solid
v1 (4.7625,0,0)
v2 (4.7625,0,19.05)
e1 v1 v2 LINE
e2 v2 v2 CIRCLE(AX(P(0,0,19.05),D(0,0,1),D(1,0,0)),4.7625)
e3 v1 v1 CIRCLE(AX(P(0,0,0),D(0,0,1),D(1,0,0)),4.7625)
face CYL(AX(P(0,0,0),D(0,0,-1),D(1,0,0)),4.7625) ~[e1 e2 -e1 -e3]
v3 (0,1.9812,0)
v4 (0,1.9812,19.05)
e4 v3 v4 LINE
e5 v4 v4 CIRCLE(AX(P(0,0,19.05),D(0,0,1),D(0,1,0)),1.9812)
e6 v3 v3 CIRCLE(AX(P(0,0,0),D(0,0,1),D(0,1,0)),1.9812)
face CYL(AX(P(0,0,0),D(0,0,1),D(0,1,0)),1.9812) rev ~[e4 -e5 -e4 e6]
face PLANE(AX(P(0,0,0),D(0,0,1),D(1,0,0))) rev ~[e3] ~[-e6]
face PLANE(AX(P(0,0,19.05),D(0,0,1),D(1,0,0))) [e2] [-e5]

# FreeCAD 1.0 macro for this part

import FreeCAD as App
import Part
import Sketcher

V = App.Vector
Q = App.Units.Quantity

doc = App.newDocument("Part")
body = doc.addObject("PartDesign::Body", "Body")

sketch1 = body.newObject("Sketcher::SketchObject", "Sketch")
sketch1.AttachmentSupport = (doc.getObject("XY_Plane"), [""])
sketch1.MapMode = "FlatFace"
sketch1.addGeometry(Part.Circle(V(0, 0, 0), V(0, 0, 1), 4.7625), False)
sketch1.addConstraint([
    Sketcher.Constraint("Coincident", 0, 3, -1, 1),
    Sketcher.Constraint("Diameter", 0, Q("0.375 in")),
])
pad1 = body.newObject("PartDesign::Pad", "Pad")
pad1.Profile = sketch1
pad1.Length = Q("0.75 in")

sketch2 = body.newObject("Sketcher::SketchObject", "Sketch001")
sketch2.AttachmentSupport = (doc.getObject("XY_Plane"), [""])
sketch2.MapMode = "FlatFace"
sketch2.addGeometry(Part.Circle(V(0, 0, 0), V(0, 0, 1), 1.9812), False)
sketch2.addConstraint([
    Sketcher.Constraint("Coincident", 0, 3, -1, 1),
    Sketcher.Constraint("Diameter", 0, Q("0.156 in")),
])
doc.recompute()
hole = body.newObject("PartDesign::Hole", "Hole")
hole.Profile = sketch2
hole.ThreadType = "None"
hole.Diameter = Q("0.156 in")
hole.DepthType = "ThroughAll"
hole.Reversed = True

doc.recompute()
